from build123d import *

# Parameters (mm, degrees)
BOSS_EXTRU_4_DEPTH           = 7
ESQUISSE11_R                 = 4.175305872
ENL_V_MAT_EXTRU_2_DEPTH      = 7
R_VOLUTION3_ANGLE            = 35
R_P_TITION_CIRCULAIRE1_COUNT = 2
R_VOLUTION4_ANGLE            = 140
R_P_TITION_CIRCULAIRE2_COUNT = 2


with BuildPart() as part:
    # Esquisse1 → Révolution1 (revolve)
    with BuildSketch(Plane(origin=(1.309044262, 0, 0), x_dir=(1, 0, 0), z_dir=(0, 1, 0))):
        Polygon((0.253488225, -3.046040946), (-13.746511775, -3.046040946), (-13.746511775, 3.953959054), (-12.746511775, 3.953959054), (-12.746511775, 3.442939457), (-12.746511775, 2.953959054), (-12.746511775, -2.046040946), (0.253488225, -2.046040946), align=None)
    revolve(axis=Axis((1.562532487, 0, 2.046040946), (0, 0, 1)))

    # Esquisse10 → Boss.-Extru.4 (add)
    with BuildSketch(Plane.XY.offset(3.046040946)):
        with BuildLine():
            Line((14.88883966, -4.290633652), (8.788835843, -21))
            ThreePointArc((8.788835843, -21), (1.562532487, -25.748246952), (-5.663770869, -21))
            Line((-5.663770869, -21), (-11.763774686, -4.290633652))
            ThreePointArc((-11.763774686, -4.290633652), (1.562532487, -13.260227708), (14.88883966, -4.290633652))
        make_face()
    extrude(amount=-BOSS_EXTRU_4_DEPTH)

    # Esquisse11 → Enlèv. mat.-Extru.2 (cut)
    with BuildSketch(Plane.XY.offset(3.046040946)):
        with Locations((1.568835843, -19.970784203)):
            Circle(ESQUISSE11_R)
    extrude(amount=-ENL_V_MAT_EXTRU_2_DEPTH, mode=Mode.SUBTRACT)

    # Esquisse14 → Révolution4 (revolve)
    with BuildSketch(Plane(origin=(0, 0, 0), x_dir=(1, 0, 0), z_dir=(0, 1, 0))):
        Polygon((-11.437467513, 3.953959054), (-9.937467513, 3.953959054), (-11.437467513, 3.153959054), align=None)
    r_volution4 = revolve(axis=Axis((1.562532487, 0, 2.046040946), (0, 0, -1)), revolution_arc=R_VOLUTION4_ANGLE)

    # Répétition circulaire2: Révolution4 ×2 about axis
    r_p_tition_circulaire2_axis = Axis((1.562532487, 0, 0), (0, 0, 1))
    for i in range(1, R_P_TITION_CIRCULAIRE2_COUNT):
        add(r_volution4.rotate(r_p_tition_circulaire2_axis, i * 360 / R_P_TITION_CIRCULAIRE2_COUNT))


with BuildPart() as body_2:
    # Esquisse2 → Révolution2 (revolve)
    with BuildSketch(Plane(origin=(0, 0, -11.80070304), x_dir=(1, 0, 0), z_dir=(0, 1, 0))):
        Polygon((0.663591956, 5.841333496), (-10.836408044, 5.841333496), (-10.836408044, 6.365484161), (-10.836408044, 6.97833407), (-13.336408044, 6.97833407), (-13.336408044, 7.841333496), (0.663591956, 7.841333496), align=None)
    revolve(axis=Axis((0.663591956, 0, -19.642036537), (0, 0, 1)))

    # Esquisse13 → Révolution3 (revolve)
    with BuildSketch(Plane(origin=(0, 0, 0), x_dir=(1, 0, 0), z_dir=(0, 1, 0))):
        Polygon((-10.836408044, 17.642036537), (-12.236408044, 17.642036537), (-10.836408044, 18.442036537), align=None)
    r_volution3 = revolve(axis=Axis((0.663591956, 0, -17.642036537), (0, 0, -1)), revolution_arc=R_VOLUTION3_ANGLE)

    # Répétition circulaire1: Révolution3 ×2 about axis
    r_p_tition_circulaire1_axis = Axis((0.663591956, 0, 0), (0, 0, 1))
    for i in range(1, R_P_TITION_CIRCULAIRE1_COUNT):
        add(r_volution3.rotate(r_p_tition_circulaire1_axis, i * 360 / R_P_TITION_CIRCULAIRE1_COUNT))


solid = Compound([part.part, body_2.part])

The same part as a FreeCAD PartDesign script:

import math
import FreeCAD as App
import Part
import Sketcher
from FreeCAD import Vector

doc = App.newDocument("Part")
body = doc.addObject("PartDesign::Body", "Body")

sketch1 = body.newObject("Sketcher::SketchObject", "Sketch")
sketch1.AttachmentSupport = (doc.getObject("XZ_Plane"), [""])
sketch1.MapMode = "FlatFace"
sketch1.addGeometry([
    Part.LineSegment(Vector(-12.4, 3, 0), Vector(1.6, 3, 0)),
    Part.LineSegment(Vector(1.6, 3, 0), Vector(1.6, 2, 0)),
    Part.LineSegment(Vector(1.6, 2, 0), Vector(-11.4, 2, 0)),
    Part.LineSegment(Vector(-11.4, 2, 0), Vector(-11.4, -4, 0)),
    Part.LineSegment(Vector(-11.4, -4, 0), Vector(-12.4, -4, 0)),
    Part.LineSegment(Vector(-12.4, -4, 0), Vector(-12.4, 3, 0)),
], False)
sketch1.addGeometry(Part.LineSegment(Vector(1.6, -4, 0), Vector(1.6, 3, 0)), True)
sketch1.addConstraint([
    Sketcher.Constraint("Coincident", 0, 2, 1, 1),
    Sketcher.Constraint("Coincident", 1, 2, 2, 1),
    Sketcher.Constraint("Coincident", 2, 2, 3, 1),
    Sketcher.Constraint("Coincident", 3, 2, 4, 1),
    Sketcher.Constraint("Coincident", 4, 2, 5, 1),
    Sketcher.Constraint("Coincident", 5, 2, 0, 1),
    Sketcher.Constraint("Horizontal", 0),
    Sketcher.Constraint("Vertical", 1),
    Sketcher.Constraint("Horizontal", 2),
    Sketcher.Constraint("Vertical", 3),
    Sketcher.Constraint("Horizontal", 4),
    Sketcher.Constraint("Vertical", 5),
    Sketcher.Constraint("Vertical", 6),
    Sketcher.Constraint("Coincident", 6, 2, 0, 2),
    Sketcher.Constraint("Horizontal", 4, 2, 6, 1),
    Sketcher.Constraint("Equal", 4, 1),
    Sketcher.Constraint("DistanceX", 0, 1, 0, 2, 14.0),
    Sketcher.Constraint("DistanceX", 2, 2, 2, 1, 13.0),
    Sketcher.Constraint("DistanceY", 3, 2, 3, 1, 6.0),
    Sketcher.Constraint("DistanceY", -1, 1, 0, 2, 3.046041),
    Sketcher.Constraint("DistanceX", -1, 1, 0, 2, 1.562532),
])
revolution = body.newObject("PartDesign::Revolution", "Revolution")
revolution.Profile = sketch1
revolution.ReferenceAxis = (sketch1, ["Axis0"])
revolution.Angle = 360

sketch2 = body.newObject("Sketcher::SketchObject", "Sketch001")
sketch2.AttachmentSupport = (doc.getObject("XY_Plane"), [""])
sketch2.MapMode = "FlatFace"
sketch2.AttachmentOffset = App.Placement(Vector(0, 0, 3.046041), App.Rotation())
sketch2.addGeometry([
    Part.LineSegment(Vector(9, -21, 0), Vector(15, -4, 0)),
    Part.ArcOfCircle(Part.Circle(Vector(2, 1, 0), Vector(0, 0, 1), 14), math.radians(-158), math.radians(-22)),
    Part.LineSegment(Vector(-12, -4, 0), Vector(-6, -21, 0)),
    Part.ArcOfCircle(Part.Circle(Vector(2, -18, 0), Vector(0, 0, 1), 8), math.radians(-157), math.radians(-23)),
], False)
sketch2.addConstraint([
    Sketcher.Constraint("Coincident", 0, 2, 1, 2),
    Sketcher.Constraint("Coincident", 1, 1, 2, 1),
    Sketcher.Constraint("Coincident", 2, 2, 3, 1),
    Sketcher.Constraint("Coincident", 3, 2, 0, 1),
    Sketcher.Constraint("Horizontal", 0, 2, 1, 1),
    Sketcher.Constraint("Horizontal", 2, 2, 3, 2),
    Sketcher.Constraint("Vertical", 1, 3, 3, 3),
    Sketcher.Constraint("DistanceY", 2, 2, -1, 1, 21.0),
    Sketcher.Constraint("Radius", 1, 14.384379),
    Sketcher.Constraint("Radius", 3, 7.872938),
    Sketcher.Constraint("Distance", 0, 17.788001),
    Sketcher.Constraint("DistanceY", -1, 1, 1, 3, 1.124151),
    Sketcher.Constraint("DistanceY", 3, 3, -1, 1, 17.875309),
    Sketcher.Constraint("DistanceX", -1, 1, 0, 2, 14.88884),
])
pad1 = body.newObject("PartDesign::Pad", "Pad")
pad1.Profile = sketch2
pad1.Length = 7
pad1.Reversed = True

sketch3 = body.newObject("Sketcher::SketchObject", "Sketch002")
sketch3.AttachmentSupport = (doc.getObject("XY_Plane"), [""])
sketch3.MapMode = "FlatFace"
sketch3.AttachmentOffset = App.Placement(Vector(0, 0, 3.046041), App.Rotation())
sketch3.addGeometry(Part.Circle(Vector(1.6, -20, 0), Vector(0, 0, 1), 4.2), False)
sketch3.addConstraint([
    Sketcher.Constraint("Diameter", 0, 8.350612),
    Sketcher.Constraint("DistanceX", -1, 1, 0, 3, 1.568836),
    Sketcher.Constraint("DistanceY", 0, 3, -1, 1, 19.970784),
])
pocket1 = body.newObject("PartDesign::Pocket", "Pocket")
pocket1.Profile = sketch3
pocket1.Length = 7

sketch4 = body.newObject("Sketcher::SketchObject", "Sketch003")
sketch4.AttachmentSupport = (doc.getObject("XZ_Plane"), [""])
sketch4.MapMode = "FlatFace"
sketch4.addGeometry([
    Part.LineSegment(Vector(-9.9, -4, 0), Vector(-11.4, -4, 0)),
    Part.LineSegment(Vector(-11.4, -4, 0), Vector(-11.4, -3.2, 0)),
    Part.LineSegment(Vector(-11.4, -3.2, 0), Vector(-9.9, -4, 0)),
], False)
sketch4.addGeometry(Part.LineSegment(Vector(1.6, -3.2, 0), Vector(1.6, -4, 0)), True)
sketch4.addConstraint([
    Sketcher.Constraint("Coincident", 0, 2, 1, 1),
    Sketcher.Constraint("Coincident", 1, 2, 2, 1),
    Sketcher.Constraint("Coincident", 2, 2, 0, 1),
    Sketcher.Constraint("Horizontal", 0),
    Sketcher.Constraint("Vertical", 1),
    Sketcher.Constraint("Vertical", 3),
    Sketcher.Constraint("Horizontal", 1, 2, 3, 1),
    Sketcher.Constraint("Horizontal", 2, 2, 3, 2),
    Sketcher.Constraint("DistanceX", 0, 2, 0, 1, 1.5),
    Sketcher.Constraint("DistanceY", 1, 1, 1, 2, 0.8),
    Sketcher.Constraint("DistanceX", 1, 2, 3, 1, 13.0),
    Sketcher.Constraint("DistanceY", 0, 2, -1, 1, 3.953959),
    Sketcher.Constraint("DistanceX", 0, 2, -1, 1, 11.437468),
])
revolution2 = body.newObject("PartDesign::Revolution", "Revolution001")
revolution2.Profile = sketch4
revolution2.ReferenceAxis = (sketch4, ["Axis0"])
revolution2.Angle = 140
doc.recompute()

datumline = body.newObject("PartDesign::Line", "DatumLine")
datumline.Placement = App.Placement(Vector(1.562532, 0, 0), App.Rotation(Vector(0, 0, 1), Vector(0, 0, 1)))
polarpattern = body.newObject("PartDesign::PolarPattern", "PolarPattern")
polarpattern.Originals = [revolution2]
polarpattern.Axis = (datumline, [""])
polarpattern.Angle = 360
polarpattern.Occurrences = 2
body.Tip = polarpattern
body2 = doc.addObject("PartDesign::Body", "Body001")

sketch5 = body2.newObject("Sketcher::SketchObject", "Sketch004")
sketch5.AttachmentSupport = (doc.getObject("XZ_Plane001"), [""])
sketch5.MapMode = "FlatFace"
sketch5.addGeometry([
    Part.LineSegment(Vector(-10.8, -17.6, 0), Vector(0.7, -17.6, 0)),
    Part.LineSegment(Vector(0.7, -17.6, 0), Vector(0.7, -19.6, 0)),
    Part.LineSegment(Vector(0.7, -19.6, 0), Vector(-13.3, -19.6, 0)),
    Part.LineSegment(Vector(-13.3, -19.6, 0), Vector(-13.3, -18.8, 0)),
    Part.LineSegment(Vector(-13.3, -18.8, 0), Vector(-10.8, -18.8, 0)),
    Part.LineSegment(Vector(-10.8, -18.8, 0), Vector(-10.8, -17.6, 0)),
], False)
sketch5.addGeometry(Part.LineSegment(Vector(0.7, -19.6, 0), Vector(0.7, -17.6, 0)), True)
sketch5.addConstraint([
    Sketcher.Constraint("Coincident", 0, 2, 1, 1),
    Sketcher.Constraint("Coincident", 1, 2, 2, 1),
    Sketcher.Constraint("Coincident", 2, 2, 3, 1),
    Sketcher.Constraint("Coincident", 3, 2, 4, 1),
    Sketcher.Constraint("Coincident", 4, 2, 5, 1),
    Sketcher.Constraint("Coincident", 5, 2, 0, 1),
    Sketcher.Constraint("Horizontal", 0),
    Sketcher.Constraint("Vertical", 1),
    Sketcher.Constraint("Horizontal", 2),
    Sketcher.Constraint("Vertical", 3),
    Sketcher.Constraint("Horizontal", 4),
    Sketcher.Constraint("Vertical", 5),
    Sketcher.Constraint("Vertical", 6),
    Sketcher.Constraint("Coincident", 6, 1, 1, 2),
    Sketcher.Constraint("Horizontal", 5, 2, 6, 2),
    Sketcher.Constraint("DistanceX", 2, 2, 2, 1, 14.0),
    Sketcher.Constraint("DistanceY", 1, 2, 1, 1, 2.0),
    Sketcher.Constraint("DistanceX", 0, 1, 0, 2, 11.5),
    Sketcher.Constraint("DistanceY", 3, 1, 3, 2, 0.862999),
    Sketcher.Constraint("DistanceX", -1, 1, 0, 2, 0.663592),
    Sketcher.Constraint("DistanceY", 0, 2, -1, 1, 17.642037),
])
revolution3 = body2.newObject("PartDesign::Revolution", "Revolution002")
revolution3.Profile = sketch5
revolution3.ReferenceAxis = (sketch5, ["Axis0"])
revolution3.Angle = 360

sketch6 = body2.newObject("Sketcher::SketchObject", "Sketch005")
sketch6.AttachmentSupport = (doc.getObject("XZ_Plane001"), [""])
sketch6.MapMode = "FlatFace"
sketch6.addGeometry([
    Part.LineSegment(Vector(-12.2, -17.6, 0), Vector(-10.8, -17.6, 0)),
    Part.LineSegment(Vector(-10.8, -17.6, 0), Vector(-10.8, -18.4, 0)),
    Part.LineSegment(Vector(-10.8, -18.4, 0), Vector(-12.2, -17.6, 0)),
], False)
sketch6.addGeometry(Part.LineSegment(Vector(0.7, -17.6, 0), Vector(0.7, -18.4, 0)), True)
sketch6.addConstraint([
    Sketcher.Constraint("Coincident", 0, 2, 1, 1),
    Sketcher.Constraint("Coincident", 1, 2, 2, 1),
    Sketcher.Constraint("Coincident", 2, 2, 0, 1),
    Sketcher.Constraint("Horizontal", 0),
    Sketcher.Constraint("Vertical", 1),
    Sketcher.Constraint("Vertical", 3),
    Sketcher.Constraint("Horizontal", 2, 2, 3, 1),
    Sketcher.Constraint("Horizontal", 1, 2, 3, 2),
    Sketcher.Constraint("DistanceX", 0, 1, 0, 2, 1.4),
    Sketcher.Constraint("DistanceY", 1, 2, 1, 1, 0.8),
    Sketcher.Constraint("DistanceX", 0, 2, 3, 1, 11.5),
    Sketcher.Constraint("DistanceX", 0, 2, -1, 1, 10.836408),
    Sketcher.Constraint("DistanceY", 0, 2, -1, 1, 17.642037),
])
revolution4 = body2.newObject("PartDesign::Revolution", "Revolution003")
revolution4.Profile = sketch6
revolution4.ReferenceAxis = (sketch6, ["Axis0"])
revolution4.Angle = 35
doc.recompute()

datumline2 = body2.newObject("PartDesign::Line", "DatumLine001")
datumline2.Placement = App.Placement(Vector(0.663592, 0, 0), App.Rotation(Vector(0, 0, 1), Vector(0, 0, 1)))
polarpattern2 = body2.newObject("PartDesign::PolarPattern", "PolarPattern001")
polarpattern2.Originals = [revolution4]
polarpattern2.Axis = (datumline2, [""])
polarpattern2.Angle = 360
polarpattern2.Occurrences = 2
body2.Tip = polarpattern2

doc.recompute()
